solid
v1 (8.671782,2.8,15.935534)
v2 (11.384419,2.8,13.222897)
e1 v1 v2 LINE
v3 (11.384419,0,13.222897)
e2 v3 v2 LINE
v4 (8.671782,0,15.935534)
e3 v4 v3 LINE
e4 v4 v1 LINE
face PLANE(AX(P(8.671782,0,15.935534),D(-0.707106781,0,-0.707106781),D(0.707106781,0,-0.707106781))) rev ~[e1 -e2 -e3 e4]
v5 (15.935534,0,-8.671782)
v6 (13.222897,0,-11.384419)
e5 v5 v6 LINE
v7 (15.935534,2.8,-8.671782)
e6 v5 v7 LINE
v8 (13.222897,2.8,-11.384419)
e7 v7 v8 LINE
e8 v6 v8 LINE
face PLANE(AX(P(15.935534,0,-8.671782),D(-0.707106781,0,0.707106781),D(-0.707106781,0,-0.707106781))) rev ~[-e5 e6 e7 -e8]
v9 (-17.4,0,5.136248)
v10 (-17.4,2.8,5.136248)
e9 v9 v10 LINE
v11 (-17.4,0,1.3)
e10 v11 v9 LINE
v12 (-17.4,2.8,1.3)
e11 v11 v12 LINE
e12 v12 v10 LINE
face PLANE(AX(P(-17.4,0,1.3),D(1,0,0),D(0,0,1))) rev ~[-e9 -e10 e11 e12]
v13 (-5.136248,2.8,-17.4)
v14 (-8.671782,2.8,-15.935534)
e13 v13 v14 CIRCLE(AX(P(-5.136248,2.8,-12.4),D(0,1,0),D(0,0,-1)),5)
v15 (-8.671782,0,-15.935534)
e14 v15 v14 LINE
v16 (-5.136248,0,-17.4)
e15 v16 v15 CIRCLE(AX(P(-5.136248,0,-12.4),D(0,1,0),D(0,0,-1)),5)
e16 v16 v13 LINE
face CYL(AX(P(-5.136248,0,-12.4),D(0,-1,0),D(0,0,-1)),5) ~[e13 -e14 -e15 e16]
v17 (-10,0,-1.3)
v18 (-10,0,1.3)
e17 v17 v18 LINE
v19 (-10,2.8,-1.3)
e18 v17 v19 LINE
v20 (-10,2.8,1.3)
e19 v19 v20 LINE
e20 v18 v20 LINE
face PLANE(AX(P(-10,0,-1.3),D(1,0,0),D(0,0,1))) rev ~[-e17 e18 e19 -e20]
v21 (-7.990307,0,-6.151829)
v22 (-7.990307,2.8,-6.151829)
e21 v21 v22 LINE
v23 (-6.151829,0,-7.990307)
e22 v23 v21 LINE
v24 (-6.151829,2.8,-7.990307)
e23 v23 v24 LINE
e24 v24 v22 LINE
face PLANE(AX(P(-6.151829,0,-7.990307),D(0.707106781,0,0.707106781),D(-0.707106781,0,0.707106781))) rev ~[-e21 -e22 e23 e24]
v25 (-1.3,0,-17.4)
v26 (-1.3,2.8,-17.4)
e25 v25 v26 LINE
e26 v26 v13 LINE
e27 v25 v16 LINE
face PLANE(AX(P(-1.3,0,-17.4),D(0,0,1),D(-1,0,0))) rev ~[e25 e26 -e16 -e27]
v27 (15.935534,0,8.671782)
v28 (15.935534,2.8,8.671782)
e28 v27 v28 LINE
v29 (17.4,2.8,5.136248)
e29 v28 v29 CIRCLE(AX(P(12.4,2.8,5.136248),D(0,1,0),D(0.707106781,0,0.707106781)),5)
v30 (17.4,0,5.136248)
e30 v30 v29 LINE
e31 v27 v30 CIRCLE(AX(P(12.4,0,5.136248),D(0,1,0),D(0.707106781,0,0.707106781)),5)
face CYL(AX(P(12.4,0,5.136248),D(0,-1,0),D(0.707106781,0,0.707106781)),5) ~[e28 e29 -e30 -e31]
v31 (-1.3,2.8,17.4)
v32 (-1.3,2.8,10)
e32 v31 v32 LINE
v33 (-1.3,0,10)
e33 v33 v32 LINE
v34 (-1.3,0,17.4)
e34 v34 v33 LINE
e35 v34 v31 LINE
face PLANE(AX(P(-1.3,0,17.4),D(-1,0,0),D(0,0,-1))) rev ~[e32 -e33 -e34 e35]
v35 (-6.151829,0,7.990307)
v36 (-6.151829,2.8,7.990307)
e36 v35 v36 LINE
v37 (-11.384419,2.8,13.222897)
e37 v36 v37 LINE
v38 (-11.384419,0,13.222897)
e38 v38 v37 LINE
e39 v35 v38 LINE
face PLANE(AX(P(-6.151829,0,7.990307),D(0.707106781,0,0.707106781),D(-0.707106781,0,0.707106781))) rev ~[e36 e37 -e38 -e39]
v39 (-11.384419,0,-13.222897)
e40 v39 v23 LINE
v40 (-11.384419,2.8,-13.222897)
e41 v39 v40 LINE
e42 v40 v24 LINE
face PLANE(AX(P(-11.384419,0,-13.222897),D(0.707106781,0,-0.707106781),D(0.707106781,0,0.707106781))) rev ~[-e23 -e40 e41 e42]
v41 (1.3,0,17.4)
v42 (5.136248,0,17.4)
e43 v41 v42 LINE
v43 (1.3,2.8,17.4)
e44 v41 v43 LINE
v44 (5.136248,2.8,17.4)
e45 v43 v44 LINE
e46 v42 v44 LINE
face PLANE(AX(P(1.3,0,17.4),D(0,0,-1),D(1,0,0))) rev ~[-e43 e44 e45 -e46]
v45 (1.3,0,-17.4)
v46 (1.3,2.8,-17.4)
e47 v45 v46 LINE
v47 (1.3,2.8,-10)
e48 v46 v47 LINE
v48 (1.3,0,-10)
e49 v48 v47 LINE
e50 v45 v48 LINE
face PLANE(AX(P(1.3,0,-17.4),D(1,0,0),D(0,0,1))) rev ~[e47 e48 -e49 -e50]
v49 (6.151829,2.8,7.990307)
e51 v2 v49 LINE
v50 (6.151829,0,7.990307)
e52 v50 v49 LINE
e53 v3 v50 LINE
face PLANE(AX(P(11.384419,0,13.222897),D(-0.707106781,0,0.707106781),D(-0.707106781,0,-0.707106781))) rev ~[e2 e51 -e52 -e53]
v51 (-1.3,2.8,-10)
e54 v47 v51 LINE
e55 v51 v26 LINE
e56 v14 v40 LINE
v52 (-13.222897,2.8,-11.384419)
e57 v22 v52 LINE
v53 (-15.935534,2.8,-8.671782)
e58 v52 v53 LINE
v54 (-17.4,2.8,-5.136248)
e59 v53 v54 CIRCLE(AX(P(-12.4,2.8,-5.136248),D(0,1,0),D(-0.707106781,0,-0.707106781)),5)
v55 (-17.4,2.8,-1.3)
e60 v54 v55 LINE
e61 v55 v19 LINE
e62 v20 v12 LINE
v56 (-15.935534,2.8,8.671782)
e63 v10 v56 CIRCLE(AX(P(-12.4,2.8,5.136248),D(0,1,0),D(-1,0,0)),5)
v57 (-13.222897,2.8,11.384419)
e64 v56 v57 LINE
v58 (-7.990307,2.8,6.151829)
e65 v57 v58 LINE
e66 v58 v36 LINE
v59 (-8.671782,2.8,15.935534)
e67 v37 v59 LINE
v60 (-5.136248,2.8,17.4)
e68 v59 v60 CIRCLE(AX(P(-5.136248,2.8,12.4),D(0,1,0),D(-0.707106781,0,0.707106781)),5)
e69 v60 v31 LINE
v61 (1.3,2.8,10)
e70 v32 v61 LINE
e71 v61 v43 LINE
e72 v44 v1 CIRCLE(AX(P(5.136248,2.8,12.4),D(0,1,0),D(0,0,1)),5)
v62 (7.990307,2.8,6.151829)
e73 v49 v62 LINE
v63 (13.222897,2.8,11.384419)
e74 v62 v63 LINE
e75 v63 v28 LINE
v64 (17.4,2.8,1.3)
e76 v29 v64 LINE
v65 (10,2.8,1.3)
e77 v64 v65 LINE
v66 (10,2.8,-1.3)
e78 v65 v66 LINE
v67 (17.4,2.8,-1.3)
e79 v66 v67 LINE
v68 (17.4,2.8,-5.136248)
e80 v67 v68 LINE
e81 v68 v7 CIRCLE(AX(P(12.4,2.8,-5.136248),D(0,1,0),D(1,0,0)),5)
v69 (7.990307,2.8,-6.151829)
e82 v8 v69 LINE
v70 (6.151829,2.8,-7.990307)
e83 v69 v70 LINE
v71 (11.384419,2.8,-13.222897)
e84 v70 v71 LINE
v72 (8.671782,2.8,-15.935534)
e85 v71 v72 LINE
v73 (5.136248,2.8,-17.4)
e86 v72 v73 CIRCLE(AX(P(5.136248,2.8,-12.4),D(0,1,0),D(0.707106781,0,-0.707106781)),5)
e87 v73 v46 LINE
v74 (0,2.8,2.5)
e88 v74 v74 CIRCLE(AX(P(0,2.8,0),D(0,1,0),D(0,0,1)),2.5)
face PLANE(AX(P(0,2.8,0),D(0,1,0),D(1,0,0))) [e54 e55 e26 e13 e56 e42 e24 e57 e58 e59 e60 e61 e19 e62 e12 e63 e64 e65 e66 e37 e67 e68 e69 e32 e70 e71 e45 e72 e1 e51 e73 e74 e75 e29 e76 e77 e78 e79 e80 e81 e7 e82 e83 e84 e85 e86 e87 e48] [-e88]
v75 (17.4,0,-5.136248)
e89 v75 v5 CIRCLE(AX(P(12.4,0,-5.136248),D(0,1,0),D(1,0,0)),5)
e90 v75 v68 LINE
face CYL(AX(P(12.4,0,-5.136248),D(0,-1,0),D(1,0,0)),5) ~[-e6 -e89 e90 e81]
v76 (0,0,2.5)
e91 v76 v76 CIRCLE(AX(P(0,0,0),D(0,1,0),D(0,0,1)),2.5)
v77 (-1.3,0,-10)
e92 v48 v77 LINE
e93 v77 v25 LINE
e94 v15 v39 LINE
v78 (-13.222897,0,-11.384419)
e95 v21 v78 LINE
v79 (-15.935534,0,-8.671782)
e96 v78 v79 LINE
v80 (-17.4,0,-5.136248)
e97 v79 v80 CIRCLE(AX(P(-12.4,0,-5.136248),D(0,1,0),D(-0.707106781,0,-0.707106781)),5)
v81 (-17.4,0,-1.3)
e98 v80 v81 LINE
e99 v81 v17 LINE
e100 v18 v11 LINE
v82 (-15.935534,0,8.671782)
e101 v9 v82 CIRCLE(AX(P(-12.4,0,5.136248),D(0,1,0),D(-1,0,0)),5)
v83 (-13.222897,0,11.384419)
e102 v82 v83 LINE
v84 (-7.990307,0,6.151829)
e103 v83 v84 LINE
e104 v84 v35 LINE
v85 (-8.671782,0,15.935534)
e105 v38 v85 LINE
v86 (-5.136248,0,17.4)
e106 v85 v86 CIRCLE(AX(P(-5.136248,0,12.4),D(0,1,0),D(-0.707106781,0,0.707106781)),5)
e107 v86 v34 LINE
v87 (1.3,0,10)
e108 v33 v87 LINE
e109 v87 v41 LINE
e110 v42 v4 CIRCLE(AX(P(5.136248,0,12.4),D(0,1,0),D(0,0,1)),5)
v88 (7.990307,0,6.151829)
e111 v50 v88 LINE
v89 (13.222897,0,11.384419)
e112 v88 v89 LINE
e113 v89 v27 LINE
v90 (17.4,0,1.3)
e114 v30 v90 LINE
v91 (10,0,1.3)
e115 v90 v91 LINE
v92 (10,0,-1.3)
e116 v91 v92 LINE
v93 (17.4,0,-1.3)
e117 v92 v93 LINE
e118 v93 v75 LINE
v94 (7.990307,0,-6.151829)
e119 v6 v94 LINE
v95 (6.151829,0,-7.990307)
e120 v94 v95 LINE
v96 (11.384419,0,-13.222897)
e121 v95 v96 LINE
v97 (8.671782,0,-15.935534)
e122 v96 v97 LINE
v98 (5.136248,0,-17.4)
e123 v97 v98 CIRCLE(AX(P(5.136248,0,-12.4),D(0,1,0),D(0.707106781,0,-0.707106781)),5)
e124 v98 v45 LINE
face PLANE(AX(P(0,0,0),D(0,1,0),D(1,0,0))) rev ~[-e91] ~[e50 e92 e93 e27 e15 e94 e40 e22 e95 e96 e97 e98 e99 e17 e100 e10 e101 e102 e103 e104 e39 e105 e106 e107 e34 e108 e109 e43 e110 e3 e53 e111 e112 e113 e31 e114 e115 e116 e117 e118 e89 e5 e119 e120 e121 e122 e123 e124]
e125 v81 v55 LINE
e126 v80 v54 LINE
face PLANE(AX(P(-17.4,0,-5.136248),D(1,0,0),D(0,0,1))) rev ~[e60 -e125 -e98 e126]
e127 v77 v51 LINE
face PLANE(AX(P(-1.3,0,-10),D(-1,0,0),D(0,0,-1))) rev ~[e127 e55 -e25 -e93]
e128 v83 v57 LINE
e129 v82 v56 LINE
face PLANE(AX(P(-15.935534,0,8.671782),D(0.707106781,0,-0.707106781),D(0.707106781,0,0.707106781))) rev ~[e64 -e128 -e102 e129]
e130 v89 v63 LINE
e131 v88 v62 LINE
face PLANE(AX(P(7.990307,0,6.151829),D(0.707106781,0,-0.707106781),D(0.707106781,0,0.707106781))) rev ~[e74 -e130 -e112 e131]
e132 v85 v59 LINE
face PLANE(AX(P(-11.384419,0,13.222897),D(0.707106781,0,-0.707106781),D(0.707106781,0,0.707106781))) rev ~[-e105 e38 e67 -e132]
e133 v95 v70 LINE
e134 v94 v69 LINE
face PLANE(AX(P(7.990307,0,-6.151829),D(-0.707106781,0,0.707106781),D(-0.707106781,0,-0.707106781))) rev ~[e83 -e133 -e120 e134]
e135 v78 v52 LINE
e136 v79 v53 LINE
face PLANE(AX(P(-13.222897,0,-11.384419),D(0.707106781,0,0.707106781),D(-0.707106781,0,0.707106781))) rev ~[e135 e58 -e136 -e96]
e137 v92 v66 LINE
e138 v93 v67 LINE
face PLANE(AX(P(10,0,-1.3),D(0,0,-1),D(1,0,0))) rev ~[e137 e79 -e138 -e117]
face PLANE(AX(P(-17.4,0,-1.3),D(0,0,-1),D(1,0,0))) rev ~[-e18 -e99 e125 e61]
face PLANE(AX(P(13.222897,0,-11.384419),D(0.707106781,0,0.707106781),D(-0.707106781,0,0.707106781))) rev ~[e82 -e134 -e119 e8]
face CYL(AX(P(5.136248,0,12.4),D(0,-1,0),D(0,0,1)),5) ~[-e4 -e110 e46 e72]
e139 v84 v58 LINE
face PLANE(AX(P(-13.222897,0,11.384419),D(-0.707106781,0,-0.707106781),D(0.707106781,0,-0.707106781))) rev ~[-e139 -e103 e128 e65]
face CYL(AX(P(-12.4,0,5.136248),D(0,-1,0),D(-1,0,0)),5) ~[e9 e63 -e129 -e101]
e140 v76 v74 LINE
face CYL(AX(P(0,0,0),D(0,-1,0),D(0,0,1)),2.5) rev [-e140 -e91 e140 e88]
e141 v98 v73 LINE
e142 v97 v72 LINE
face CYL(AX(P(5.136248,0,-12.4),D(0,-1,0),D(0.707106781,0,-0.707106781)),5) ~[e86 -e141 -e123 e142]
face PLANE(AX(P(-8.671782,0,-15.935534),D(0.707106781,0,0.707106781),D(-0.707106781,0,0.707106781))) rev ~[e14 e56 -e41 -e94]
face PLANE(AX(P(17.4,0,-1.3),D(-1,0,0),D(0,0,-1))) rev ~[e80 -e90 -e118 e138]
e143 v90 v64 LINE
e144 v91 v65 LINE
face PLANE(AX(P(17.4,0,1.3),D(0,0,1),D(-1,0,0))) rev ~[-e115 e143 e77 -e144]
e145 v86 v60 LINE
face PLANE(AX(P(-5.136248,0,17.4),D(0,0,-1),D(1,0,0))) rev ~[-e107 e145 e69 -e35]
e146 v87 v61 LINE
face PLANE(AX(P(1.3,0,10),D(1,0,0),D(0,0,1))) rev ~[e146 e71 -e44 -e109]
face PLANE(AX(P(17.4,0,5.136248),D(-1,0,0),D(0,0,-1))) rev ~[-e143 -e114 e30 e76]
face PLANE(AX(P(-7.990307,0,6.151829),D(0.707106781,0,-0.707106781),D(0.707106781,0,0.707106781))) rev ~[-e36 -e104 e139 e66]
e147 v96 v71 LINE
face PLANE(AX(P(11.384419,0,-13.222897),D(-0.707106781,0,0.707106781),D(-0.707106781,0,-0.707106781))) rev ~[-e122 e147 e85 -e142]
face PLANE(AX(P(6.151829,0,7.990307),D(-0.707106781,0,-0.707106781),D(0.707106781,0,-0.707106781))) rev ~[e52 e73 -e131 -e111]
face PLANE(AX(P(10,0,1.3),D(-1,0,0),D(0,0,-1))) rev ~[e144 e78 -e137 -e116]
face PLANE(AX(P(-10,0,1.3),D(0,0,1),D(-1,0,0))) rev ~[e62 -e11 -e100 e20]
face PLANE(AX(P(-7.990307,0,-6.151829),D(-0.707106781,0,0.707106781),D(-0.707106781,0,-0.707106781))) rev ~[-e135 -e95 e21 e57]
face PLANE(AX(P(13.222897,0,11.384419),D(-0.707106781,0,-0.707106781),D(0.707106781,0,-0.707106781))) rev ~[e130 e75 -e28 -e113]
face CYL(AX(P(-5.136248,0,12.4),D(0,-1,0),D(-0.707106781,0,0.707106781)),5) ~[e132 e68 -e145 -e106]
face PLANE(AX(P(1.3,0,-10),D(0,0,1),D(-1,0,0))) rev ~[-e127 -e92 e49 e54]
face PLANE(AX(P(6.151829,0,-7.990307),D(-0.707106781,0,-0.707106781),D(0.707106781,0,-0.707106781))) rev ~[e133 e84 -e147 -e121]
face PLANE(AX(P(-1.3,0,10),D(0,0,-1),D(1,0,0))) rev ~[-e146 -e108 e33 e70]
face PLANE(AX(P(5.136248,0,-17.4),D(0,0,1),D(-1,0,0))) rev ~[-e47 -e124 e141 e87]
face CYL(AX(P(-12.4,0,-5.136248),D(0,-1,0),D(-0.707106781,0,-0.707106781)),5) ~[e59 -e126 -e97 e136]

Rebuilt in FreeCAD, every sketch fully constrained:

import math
import FreeCAD as App
import Part
import Sketcher

V = App.Vector

doc = App.newDocument("Part")
params = doc.addObject("Spreadsheet::Sheet", "Params")
for row, (alias, value) in enumerate([
    ("sketch1_diameter", "5 mm"),
    ("sketch1_radius", "5 mm"),
    ("sketch1_width", "2.6 mm"),
    ("sketch1_width2", "7.4 mm"),
    ("sketch1_length", "7.4 mm"),
    ("pad1_length", "2.8 mm"),
], start=1):
    params.set(f"A{row}", alias)
    params.set(f"B{row}", "=" + value)
    params.setAlias(f"B{row}", alias)

body = doc.addObject("PartDesign::Body", "Body")

# Sketch on XZ plane
sketch1 = body.newObject("Sketcher::SketchObject", "Sketch")
sketch1.AttachmentSupport = (doc.getObject("XZ_Plane"), [""])
sketch1.MapMode = "FlatFace"
sketch1.addGeometry([
    Part.LineSegment(V(-1.3, 17.4, 0), V(-1.3, 10, 0)),  # 0
    Part.LineSegment(V(-1.3, 10, 0), V(1.3, 10, 0)),  # 1
    Part.LineSegment(V(1.3, 10, 0), V(1.3, 17.4, 0)),  # 2
    Part.LineSegment(V(1.3, 17.4, 0), V(5.1, 17.4, 0)),  # 3
    Part.ArcOfCircle(Part.Circle(V(5.1, 12.4, 0), V(0, 0, 1), 5), math.radians(45), math.radians(90)),  # 4
    Part.LineSegment(V(8.7, 15.9, 0), V(11.4, 13.2, 0)),  # 5
    Part.LineSegment(V(11.4, 13.2, 0), V(6.2, 8, 0)),  # 6
    Part.LineSegment(V(6.2, 8, 0), V(8, 6.2, 0)),  # 7
    Part.LineSegment(V(8, 6.2, 0), V(13.2, 11.4, 0)),  # 8
    Part.LineSegment(V(13.2, 11.4, 0), V(15.9, 8.7, 0)),  # 9
    Part.ArcOfCircle(Part.Circle(V(12.4, 5.1, 0), V(0, 0, 1), 5), math.radians(0), math.radians(45)),  # 10
    Part.LineSegment(V(17.4, 5.1, 0), V(17.4, 1.3, 0)),  # 11
    Part.LineSegment(V(17.4, 1.3, 0), V(10, 1.3, 0)),  # 12
    Part.LineSegment(V(10, 1.3, 0), V(10, -1.3, 0)),  # 13
    Part.LineSegment(V(10, -1.3, 0), V(17.4, -1.3, 0)),  # 14
    Part.LineSegment(V(17.4, -1.3, 0), V(17.4, -5.1, 0)),  # 15
    Part.ArcOfCircle(Part.Circle(V(12.4, -5.1, 0), V(0, 0, 1), 5), math.radians(-45), math.radians(0)),  # 16
    Part.LineSegment(V(15.9, -8.7, 0), V(13.2, -11.4, 0)),  # 17
    Part.LineSegment(V(13.2, -11.4, 0), V(8, -6.2, 0)),  # 18
    Part.LineSegment(V(8, -6.2, 0), V(6.2, -8, 0)),  # 19
    Part.LineSegment(V(6.2, -8, 0), V(11.4, -13.2, 0)),  # 20
    Part.LineSegment(V(11.4, -13.2, 0), V(8.7, -15.9, 0)),  # 21
    Part.ArcOfCircle(Part.Circle(V(5.1, -12.4, 0), V(0, 0, 1), 5), math.radians(-90), math.radians(-45)),  # 22
    Part.LineSegment(V(5.1, -17.4, 0), V(1.3, -17.4, 0)),  # 23
    Part.LineSegment(V(1.3, -17.4, 0), V(1.3, -10, 0)),  # 24
    Part.LineSegment(V(1.3, -10, 0), V(-1.3, -10, 0)),  # 25
    Part.LineSegment(V(-1.3, -10, 0), V(-1.3, -17.4, 0)),  # 26
    Part.LineSegment(V(-1.3, -17.4, 0), V(-5.1, -17.4, 0)),  # 27
    Part.ArcOfCircle(Part.Circle(V(-5.1, -12.4, 0), V(0, 0, 1), 5), math.radians(-135), math.radians(-90)),  # 28
    Part.LineSegment(V(-8.7, -15.9, 0), V(-11.4, -13.2, 0)),  # 29
    Part.LineSegment(V(-11.4, -13.2, 0), V(-6.2, -8, 0)),  # 30
    Part.LineSegment(V(-6.2, -8, 0), V(-8, -6.2, 0)),  # 31
    Part.LineSegment(V(-8, -6.2, 0), V(-13.2, -11.4, 0)),  # 32
    Part.LineSegment(V(-13.2, -11.4, 0), V(-15.9, -8.7, 0)),  # 33
    Part.ArcOfCircle(Part.Circle(V(-12.4, -5.1, 0), V(0, 0, 1), 5), math.radians(180), math.radians(225)),  # 34
    Part.LineSegment(V(-17.4, -5.1, 0), V(-17.4, -1.3, 0)),  # 35
    Part.LineSegment(V(-17.4, -1.3, 0), V(-10, -1.3, 0)),  # 36
    Part.LineSegment(V(-10, -1.3, 0), V(-10, 1.3, 0)),  # 37
    Part.LineSegment(V(-10, 1.3, 0), V(-17.4, 1.3, 0)),  # 38
    Part.LineSegment(V(-17.4, 1.3, 0), V(-17.4, 5.1, 0)),  # 39
    Part.ArcOfCircle(Part.Circle(V(-12.4, 5.1, 0), V(0, 0, 1), 5), math.radians(135), math.radians(180)),  # 40
    Part.LineSegment(V(-15.9, 8.7, 0), V(-13.2, 11.4, 0)),  # 41
    Part.LineSegment(V(-13.2, 11.4, 0), V(-8, 6.2, 0)),  # 42
    Part.LineSegment(V(-8, 6.2, 0), V(-6.2, 8, 0)),  # 43
    Part.LineSegment(V(-6.2, 8, 0), V(-11.4, 13.2, 0)),  # 44
    Part.LineSegment(V(-11.4, 13.2, 0), V(-8.7, 15.9, 0)),  # 45
    Part.ArcOfCircle(Part.Circle(V(-5.1, 12.4, 0), V(0, 0, 1), 5), math.radians(90), math.radians(135)),  # 46
    Part.LineSegment(V(-5.1, 17.4, 0), V(-1.3, 17.4, 0)),  # 47
    Part.Circle(V(0, 0, 0), V(0, 0, 1), 2.5),  # 48
], False)
sketch1.addConstraint([
    Sketcher.Constraint("Coincident", 0, 2, 1, 1),
    Sketcher.Constraint("Coincident", 1, 2, 2, 1),
    Sketcher.Constraint("Coincident", 2, 2, 3, 1),
    Sketcher.Constraint("Tangent", 3, 2, 4, 2),
    Sketcher.Constraint("Tangent", 4, 1, 5, 1),
    Sketcher.Constraint("Coincident", 5, 2, 6, 1),
    Sketcher.Constraint("Coincident", 6, 2, 7, 1),
    Sketcher.Constraint("Coincident", 7, 2, 8, 1),
    Sketcher.Constraint("Coincident", 8, 2, 9, 1),
    Sketcher.Constraint("Tangent", 9, 2, 10, 2),
    Sketcher.Constraint("Tangent", 10, 1, 11, 1),
    Sketcher.Constraint("Coincident", 11, 2, 12, 1),
    Sketcher.Constraint("Coincident", 12, 2, 13, 1),
    Sketcher.Constraint("Coincident", 13, 2, 14, 1),
    Sketcher.Constraint("Coincident", 14, 2, 15, 1),
    Sketcher.Constraint("Tangent", 15, 2, 16, 2),
    Sketcher.Constraint("Tangent", 16, 1, 17, 1),
    Sketcher.Constraint("Coincident", 17, 2, 18, 1),
    Sketcher.Constraint("Coincident", 18, 2, 19, 1),
    Sketcher.Constraint("Coincident", 19, 2, 20, 1),
    Sketcher.Constraint("Coincident", 20, 2, 21, 1),
    Sketcher.Constraint("Tangent", 21, 2, 22, 2),
    Sketcher.Constraint("Tangent", 22, 1, 23, 1),
    Sketcher.Constraint("Coincident", 23, 2, 24, 1),
    Sketcher.Constraint("Coincident", 24, 2, 25, 1),
    Sketcher.Constraint("Coincident", 25, 2, 26, 1),
    Sketcher.Constraint("Coincident", 26, 2, 27, 1),
    Sketcher.Constraint("Tangent", 27, 2, 28, 2),
    Sketcher.Constraint("Tangent", 28, 1, 29, 1),
    Sketcher.Constraint("Coincident", 29, 2, 30, 1),
    Sketcher.Constraint("Coincident", 30, 2, 31, 1),
    Sketcher.Constraint("Coincident", 31, 2, 32, 1),
    Sketcher.Constraint("Coincident", 32, 2, 33, 1),
    Sketcher.Constraint("Tangent", 33, 2, 34, 2),
    Sketcher.Constraint("Tangent", 34, 1, 35, 1),
    Sketcher.Constraint("Coincident", 35, 2, 36, 1),
    Sketcher.Constraint("Coincident", 36, 2, 37, 1),
    Sketcher.Constraint("Coincident", 37, 2, 38, 1),
    Sketcher.Constraint("Coincident", 38, 2, 39, 1),
    Sketcher.Constraint("Tangent", 39, 2, 40, 2),
    Sketcher.Constraint("Tangent", 40, 1, 41, 1),
    Sketcher.Constraint("Coincident", 41, 2, 42, 1),
    Sketcher.Constraint("Coincident", 42, 2, 43, 1),
    Sketcher.Constraint("Coincident", 43, 2, 44, 1),
    Sketcher.Constraint("Coincident", 44, 2, 45, 1),
    Sketcher.Constraint("Tangent", 45, 2, 46, 2),
    Sketcher.Constraint("Tangent", 46, 1, 47, 1),
    Sketcher.Constraint("Coincident", 47, 2, 0, 1),
    Sketcher.Constraint("Vertical", 0),
    Sketcher.Constraint("Horizontal", 1),
    Sketcher.Constraint("Vertical", 2),
    Sketcher.Constraint("Horizontal", 3),
    Sketcher.Constraint("Vertical", 11),
    Sketcher.Constraint("Horizontal", 12),
    Sketcher.Constraint("Vertical", 13),
    Sketcher.Constraint("Horizontal", 14),
    Sketcher.Constraint("Vertical", 15),
    Sketcher.Constraint("Horizontal", 23),
    Sketcher.Constraint("Vertical", 24),
    Sketcher.Constraint("Horizontal", 25),
    Sketcher.Constraint("Vertical", 26),
    Sketcher.Constraint("Horizontal", 27),
    Sketcher.Constraint("Vertical", 35),
    Sketcher.Constraint("Horizontal", 36),
    Sketcher.Constraint("Vertical", 37),
    Sketcher.Constraint("Horizontal", 38),
    Sketcher.Constraint("Vertical", 39),
    Sketcher.Constraint("Horizontal", 47),
    Sketcher.Constraint("Coincident", 48, 3, -1, 1),
    Sketcher.Constraint("Equal", 4, 10),
    Sketcher.Constraint("Equal", 10, 16),
    Sketcher.Constraint("Equal", 16, 22),
    Sketcher.Constraint("Equal", 22, 28),
    Sketcher.Constraint("Equal", 28, 34),
    Sketcher.Constraint("Equal", 34, 40),
    Sketcher.Constraint("Equal", 40, 46),
    Sketcher.Constraint("Symmetric", 4, 3, 28, 3, -1, 1),
    Sketcher.Constraint("Symmetric", 10, 3, 34, 3, -1, 1),
    Sketcher.Constraint("Symmetric", 16, 3, 40, 3, -1, 1),
    Sketcher.Constraint("Symmetric", 22, 3, 46, 3, -1, 1),
    Sketcher.Constraint("Symmetric", 0, 2, 24, 2, -1, 1),
    Sketcher.Constraint("Symmetric", 5, 2, 29, 2, -1, 1),
    Sketcher.Constraint("Symmetric", 6, 2, 30, 2, -1, 1),
    Sketcher.Constraint("Symmetric", 7, 2, 31, 2, -1, 1),
    Sketcher.Constraint("Symmetric", 8, 2, 32, 2, -1, 1),
    Sketcher.Constraint("Symmetric", 12, 2, 36, 2, -1, 1),
    Sketcher.Constraint("Symmetric", 17, 2, 41, 2, -1, 1),
    Sketcher.Constraint("Symmetric", 18, 2, 42, 2, -1, 1),
    Sketcher.Constraint("Symmetric", 19, 2, 43, 2, -1, 1),
    Sketcher.Constraint("Symmetric", 20, 2, 44, 2, -1, 1),
    Sketcher.Constraint("Symmetric", 22, 3, 28, 3, -2),
    Sketcher.Constraint("Symmetric", 16, 3, 34, 3, -2),
    Sketcher.Constraint("Symmetric", 20, 2, 29, 2, -2),
    Sketcher.Constraint("Symmetric", 19, 2, 30, 2, -2),
    Sketcher.Constraint("Symmetric", 18, 2, 31, 2, -2),
    Sketcher.Constraint("Symmetric", 17, 2, 32, 2, -2),
    Sketcher.Constraint("Perpendicular", 5, 6),
    Sketcher.Constraint("Perpendicular", 6, 7),
    Sketcher.Constraint("Perpendicular", 7, 8),
    Sketcher.Constraint("Perpendicular", 8, 9),
    Sketcher.Constraint("Perpendicular", 9, 17),
    Sketcher.Constraint("Horizontal", 14, 2, 35, 2),
    Sketcher.Constraint("Horizontal", 12, 2, 37, 2),
    Sketcher.Constraint("Vertical", 2, 2, 23, 2),
    Sketcher.Constraint("Vertical", 0, 2, 25, 2),
    Sketcher.Constraint("Equal", 38, 0),
    Sketcher.Constraint("Equal", 47, 11),
    Sketcher.Constraint("Equal", 25, 13),
    Sketcher.Constraint("Equal", 6, 8),
    Sketcher.Constraint("Equal", 5, 9),
    Sketcher.Constraint("Diameter", 48, 5.0),
    Sketcher.Constraint("Radius", 4, 5.0),
    Sketcher.Constraint("DistanceX", 1, 1, 1, 2, 2.6),
    Sketcher.Constraint("DistanceX", 12, 2, 12, 1, 7.4),
    Sketcher.Constraint("DistanceY", -1, 1, 0, 2, 10.0),
    Sketcher.Constraint("Distance", 6, 7.4),
    Sketcher.Constraint("Distance", 7, 2.6),
    Sketcher.Constraint("DistanceX", 3, 1, 3, 2, 3.836248),
])
sketch1.setExpression("Constraints[110]", "Params.sketch1_diameter")
sketch1.setExpression("Constraints[111]", "Params.sketch1_radius")
sketch1.setExpression("Constraints[112]", "Params.sketch1_width")
sketch1.setExpression("Constraints[113]", "Params.sketch1_width2")
sketch1.setExpression("Constraints[115]", "Params.sketch1_length")
pad1 = body.newObject("PartDesign::Pad", "Pad")
pad1.Profile = sketch1
pad1.setExpression("Length", "Params.pad1_length")
pad1.Reversed = True

doc.recompute()
